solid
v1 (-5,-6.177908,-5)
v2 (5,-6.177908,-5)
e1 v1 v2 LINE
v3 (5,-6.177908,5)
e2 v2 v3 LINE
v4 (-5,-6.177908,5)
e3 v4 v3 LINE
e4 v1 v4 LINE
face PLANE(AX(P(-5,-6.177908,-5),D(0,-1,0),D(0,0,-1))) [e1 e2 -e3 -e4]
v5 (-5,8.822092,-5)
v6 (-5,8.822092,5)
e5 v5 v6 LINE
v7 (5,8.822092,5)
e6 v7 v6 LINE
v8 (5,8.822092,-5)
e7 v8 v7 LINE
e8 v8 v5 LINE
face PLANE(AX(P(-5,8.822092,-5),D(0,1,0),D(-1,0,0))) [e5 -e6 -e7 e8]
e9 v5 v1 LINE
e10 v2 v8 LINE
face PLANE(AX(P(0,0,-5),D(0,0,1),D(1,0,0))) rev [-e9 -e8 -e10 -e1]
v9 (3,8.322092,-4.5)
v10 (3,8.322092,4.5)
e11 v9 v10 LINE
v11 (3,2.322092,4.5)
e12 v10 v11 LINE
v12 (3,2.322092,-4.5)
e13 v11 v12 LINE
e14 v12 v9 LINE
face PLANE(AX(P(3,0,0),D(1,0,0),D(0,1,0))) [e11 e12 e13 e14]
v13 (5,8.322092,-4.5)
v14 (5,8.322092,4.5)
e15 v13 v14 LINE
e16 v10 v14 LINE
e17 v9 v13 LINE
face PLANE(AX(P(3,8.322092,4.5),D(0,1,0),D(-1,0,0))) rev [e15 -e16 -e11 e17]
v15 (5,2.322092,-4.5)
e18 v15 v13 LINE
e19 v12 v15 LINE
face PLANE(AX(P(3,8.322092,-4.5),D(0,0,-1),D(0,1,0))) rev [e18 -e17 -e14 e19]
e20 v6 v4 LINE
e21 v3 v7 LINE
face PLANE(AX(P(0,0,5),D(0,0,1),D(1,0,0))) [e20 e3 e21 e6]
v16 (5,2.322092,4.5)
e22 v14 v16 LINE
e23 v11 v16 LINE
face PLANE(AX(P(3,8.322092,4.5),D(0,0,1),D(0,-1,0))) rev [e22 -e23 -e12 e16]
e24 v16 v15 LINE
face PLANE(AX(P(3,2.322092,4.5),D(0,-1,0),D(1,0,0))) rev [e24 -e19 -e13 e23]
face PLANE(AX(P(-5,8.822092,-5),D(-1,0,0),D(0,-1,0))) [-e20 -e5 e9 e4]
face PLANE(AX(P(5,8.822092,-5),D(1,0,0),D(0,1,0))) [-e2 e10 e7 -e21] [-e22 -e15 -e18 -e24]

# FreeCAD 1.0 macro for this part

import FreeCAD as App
import Part
import Sketcher
from FreeCAD import Vector


def add_polygon(sketch, points):
    """Adds a closed chain of lines whose ends are joined by coincident constraints."""
    first, n = sketch.GeometryCount, len(points)
    for a, b in zip(points, points[1:] + points[:1]):
        sketch.addGeometry(Part.LineSegment(App.Vector(*a, 0), App.Vector(*b, 0)), False)
    for i in range(n):
        sketch.addConstraint(Sketcher.Constraint("Coincident", first + i, 2, first + (i + 1) % n, 1))

doc = App.newDocument("Part")
params = doc.addObject("Spreadsheet::Sheet", "Params")
for row, (alias, value) in enumerate([
    ("sketch1_width", "10 mm"),
    ("sketch1_height", "15 mm"),
    ("pad1_length", "5 mm"),
    ("pad1_length2", "5 mm"),
    ("sketch2_width", "6 mm"),
    ("sketch2_height", "9 mm"),
    ("pocket1_length", "2 mm"),
], start=1):
    params.set(f"A{row}", alias)
    params.set(f"B{row}", "=" + value)
    params.setAlias(f"B{row}", alias)

body = doc.addObject("PartDesign::Body", "Body")

sketch1 = body.newObject("Sketcher::SketchObject", "Sketch")
sketch1.AttachmentSupport = (doc.getObject("XY_Plane"), [""])
sketch1.MapMode = "FlatFace"
add_polygon(sketch1, [(-5, 8.822092), (-5, -6.177908), (5, -6.177908), (5, 8.822092)])
sketch1.addConstraint([
    Sketcher.Constraint("Vertical", 0),
    Sketcher.Constraint("Horizontal", 1),
    Sketcher.Constraint("Vertical", 2),
    Sketcher.Constraint("Horizontal", 3),
    Sketcher.Constraint("DistanceX", 1, 1, 1, 2, 10.0),
    Sketcher.Constraint("DistanceY", 0, 2, 0, 1, 15.0),
    Sketcher.Constraint("DistanceX", 0, 2, -1, 1, 5.0),
    Sketcher.Constraint("DistanceY", 0, 2, -1, 1, 6.177908),
])
sketch1.setExpression("Constraints[8]", "Params.sketch1_width")
sketch1.setExpression("Constraints[9]", "Params.sketch1_height")
pad1 = body.newObject("PartDesign::Pad", "Pad")
pad1.Profile = sketch1
pad1.Type = "TwoLengths"
pad1.setExpression("Length", "Params.pad1_length")
pad1.setExpression("Length2", "Params.pad1_length2")

sketch2 = body.newObject("Sketcher::SketchObject", "Sketch001")
sketch2.AttachmentSupport = (doc.getObject("YZ_Plane"), [""])
sketch2.MapMode = "FlatFace"
sketch2.AttachmentOffset = App.Placement(Vector(0, 0, 5), App.Rotation())
add_polygon(sketch2, [(8.322092, 4.5), (2.322092, 4.5), (2.322092, -4.5), (8.322092, -4.5)])
sketch2.addConstraint([
    Sketcher.Constraint("Horizontal", 0),
    Sketcher.Constraint("Vertical", 1),
    Sketcher.Constraint("Horizontal", 2),
    Sketcher.Constraint("Vertical", 3),
    Sketcher.Constraint("DistanceX", 0, 2, 0, 1, 6.0),
    Sketcher.Constraint("DistanceY", 1, 2, 1, 1, 9.0),
    Sketcher.Constraint("DistanceY", -1, 1, 0, 2, 4.5),
    Sketcher.Constraint("DistanceX", -1, 1, 0, 2, 2.322092),
])
sketch2.setExpression("Constraints[8]", "Params.sketch2_width")
sketch2.setExpression("Constraints[9]", "Params.sketch2_height")
pocket1 = body.newObject("PartDesign::Pocket", "Pocket")
pocket1.Profile = sketch2
pocket1.setExpression("Length", "Params.pocket1_length")

doc.recompute()
